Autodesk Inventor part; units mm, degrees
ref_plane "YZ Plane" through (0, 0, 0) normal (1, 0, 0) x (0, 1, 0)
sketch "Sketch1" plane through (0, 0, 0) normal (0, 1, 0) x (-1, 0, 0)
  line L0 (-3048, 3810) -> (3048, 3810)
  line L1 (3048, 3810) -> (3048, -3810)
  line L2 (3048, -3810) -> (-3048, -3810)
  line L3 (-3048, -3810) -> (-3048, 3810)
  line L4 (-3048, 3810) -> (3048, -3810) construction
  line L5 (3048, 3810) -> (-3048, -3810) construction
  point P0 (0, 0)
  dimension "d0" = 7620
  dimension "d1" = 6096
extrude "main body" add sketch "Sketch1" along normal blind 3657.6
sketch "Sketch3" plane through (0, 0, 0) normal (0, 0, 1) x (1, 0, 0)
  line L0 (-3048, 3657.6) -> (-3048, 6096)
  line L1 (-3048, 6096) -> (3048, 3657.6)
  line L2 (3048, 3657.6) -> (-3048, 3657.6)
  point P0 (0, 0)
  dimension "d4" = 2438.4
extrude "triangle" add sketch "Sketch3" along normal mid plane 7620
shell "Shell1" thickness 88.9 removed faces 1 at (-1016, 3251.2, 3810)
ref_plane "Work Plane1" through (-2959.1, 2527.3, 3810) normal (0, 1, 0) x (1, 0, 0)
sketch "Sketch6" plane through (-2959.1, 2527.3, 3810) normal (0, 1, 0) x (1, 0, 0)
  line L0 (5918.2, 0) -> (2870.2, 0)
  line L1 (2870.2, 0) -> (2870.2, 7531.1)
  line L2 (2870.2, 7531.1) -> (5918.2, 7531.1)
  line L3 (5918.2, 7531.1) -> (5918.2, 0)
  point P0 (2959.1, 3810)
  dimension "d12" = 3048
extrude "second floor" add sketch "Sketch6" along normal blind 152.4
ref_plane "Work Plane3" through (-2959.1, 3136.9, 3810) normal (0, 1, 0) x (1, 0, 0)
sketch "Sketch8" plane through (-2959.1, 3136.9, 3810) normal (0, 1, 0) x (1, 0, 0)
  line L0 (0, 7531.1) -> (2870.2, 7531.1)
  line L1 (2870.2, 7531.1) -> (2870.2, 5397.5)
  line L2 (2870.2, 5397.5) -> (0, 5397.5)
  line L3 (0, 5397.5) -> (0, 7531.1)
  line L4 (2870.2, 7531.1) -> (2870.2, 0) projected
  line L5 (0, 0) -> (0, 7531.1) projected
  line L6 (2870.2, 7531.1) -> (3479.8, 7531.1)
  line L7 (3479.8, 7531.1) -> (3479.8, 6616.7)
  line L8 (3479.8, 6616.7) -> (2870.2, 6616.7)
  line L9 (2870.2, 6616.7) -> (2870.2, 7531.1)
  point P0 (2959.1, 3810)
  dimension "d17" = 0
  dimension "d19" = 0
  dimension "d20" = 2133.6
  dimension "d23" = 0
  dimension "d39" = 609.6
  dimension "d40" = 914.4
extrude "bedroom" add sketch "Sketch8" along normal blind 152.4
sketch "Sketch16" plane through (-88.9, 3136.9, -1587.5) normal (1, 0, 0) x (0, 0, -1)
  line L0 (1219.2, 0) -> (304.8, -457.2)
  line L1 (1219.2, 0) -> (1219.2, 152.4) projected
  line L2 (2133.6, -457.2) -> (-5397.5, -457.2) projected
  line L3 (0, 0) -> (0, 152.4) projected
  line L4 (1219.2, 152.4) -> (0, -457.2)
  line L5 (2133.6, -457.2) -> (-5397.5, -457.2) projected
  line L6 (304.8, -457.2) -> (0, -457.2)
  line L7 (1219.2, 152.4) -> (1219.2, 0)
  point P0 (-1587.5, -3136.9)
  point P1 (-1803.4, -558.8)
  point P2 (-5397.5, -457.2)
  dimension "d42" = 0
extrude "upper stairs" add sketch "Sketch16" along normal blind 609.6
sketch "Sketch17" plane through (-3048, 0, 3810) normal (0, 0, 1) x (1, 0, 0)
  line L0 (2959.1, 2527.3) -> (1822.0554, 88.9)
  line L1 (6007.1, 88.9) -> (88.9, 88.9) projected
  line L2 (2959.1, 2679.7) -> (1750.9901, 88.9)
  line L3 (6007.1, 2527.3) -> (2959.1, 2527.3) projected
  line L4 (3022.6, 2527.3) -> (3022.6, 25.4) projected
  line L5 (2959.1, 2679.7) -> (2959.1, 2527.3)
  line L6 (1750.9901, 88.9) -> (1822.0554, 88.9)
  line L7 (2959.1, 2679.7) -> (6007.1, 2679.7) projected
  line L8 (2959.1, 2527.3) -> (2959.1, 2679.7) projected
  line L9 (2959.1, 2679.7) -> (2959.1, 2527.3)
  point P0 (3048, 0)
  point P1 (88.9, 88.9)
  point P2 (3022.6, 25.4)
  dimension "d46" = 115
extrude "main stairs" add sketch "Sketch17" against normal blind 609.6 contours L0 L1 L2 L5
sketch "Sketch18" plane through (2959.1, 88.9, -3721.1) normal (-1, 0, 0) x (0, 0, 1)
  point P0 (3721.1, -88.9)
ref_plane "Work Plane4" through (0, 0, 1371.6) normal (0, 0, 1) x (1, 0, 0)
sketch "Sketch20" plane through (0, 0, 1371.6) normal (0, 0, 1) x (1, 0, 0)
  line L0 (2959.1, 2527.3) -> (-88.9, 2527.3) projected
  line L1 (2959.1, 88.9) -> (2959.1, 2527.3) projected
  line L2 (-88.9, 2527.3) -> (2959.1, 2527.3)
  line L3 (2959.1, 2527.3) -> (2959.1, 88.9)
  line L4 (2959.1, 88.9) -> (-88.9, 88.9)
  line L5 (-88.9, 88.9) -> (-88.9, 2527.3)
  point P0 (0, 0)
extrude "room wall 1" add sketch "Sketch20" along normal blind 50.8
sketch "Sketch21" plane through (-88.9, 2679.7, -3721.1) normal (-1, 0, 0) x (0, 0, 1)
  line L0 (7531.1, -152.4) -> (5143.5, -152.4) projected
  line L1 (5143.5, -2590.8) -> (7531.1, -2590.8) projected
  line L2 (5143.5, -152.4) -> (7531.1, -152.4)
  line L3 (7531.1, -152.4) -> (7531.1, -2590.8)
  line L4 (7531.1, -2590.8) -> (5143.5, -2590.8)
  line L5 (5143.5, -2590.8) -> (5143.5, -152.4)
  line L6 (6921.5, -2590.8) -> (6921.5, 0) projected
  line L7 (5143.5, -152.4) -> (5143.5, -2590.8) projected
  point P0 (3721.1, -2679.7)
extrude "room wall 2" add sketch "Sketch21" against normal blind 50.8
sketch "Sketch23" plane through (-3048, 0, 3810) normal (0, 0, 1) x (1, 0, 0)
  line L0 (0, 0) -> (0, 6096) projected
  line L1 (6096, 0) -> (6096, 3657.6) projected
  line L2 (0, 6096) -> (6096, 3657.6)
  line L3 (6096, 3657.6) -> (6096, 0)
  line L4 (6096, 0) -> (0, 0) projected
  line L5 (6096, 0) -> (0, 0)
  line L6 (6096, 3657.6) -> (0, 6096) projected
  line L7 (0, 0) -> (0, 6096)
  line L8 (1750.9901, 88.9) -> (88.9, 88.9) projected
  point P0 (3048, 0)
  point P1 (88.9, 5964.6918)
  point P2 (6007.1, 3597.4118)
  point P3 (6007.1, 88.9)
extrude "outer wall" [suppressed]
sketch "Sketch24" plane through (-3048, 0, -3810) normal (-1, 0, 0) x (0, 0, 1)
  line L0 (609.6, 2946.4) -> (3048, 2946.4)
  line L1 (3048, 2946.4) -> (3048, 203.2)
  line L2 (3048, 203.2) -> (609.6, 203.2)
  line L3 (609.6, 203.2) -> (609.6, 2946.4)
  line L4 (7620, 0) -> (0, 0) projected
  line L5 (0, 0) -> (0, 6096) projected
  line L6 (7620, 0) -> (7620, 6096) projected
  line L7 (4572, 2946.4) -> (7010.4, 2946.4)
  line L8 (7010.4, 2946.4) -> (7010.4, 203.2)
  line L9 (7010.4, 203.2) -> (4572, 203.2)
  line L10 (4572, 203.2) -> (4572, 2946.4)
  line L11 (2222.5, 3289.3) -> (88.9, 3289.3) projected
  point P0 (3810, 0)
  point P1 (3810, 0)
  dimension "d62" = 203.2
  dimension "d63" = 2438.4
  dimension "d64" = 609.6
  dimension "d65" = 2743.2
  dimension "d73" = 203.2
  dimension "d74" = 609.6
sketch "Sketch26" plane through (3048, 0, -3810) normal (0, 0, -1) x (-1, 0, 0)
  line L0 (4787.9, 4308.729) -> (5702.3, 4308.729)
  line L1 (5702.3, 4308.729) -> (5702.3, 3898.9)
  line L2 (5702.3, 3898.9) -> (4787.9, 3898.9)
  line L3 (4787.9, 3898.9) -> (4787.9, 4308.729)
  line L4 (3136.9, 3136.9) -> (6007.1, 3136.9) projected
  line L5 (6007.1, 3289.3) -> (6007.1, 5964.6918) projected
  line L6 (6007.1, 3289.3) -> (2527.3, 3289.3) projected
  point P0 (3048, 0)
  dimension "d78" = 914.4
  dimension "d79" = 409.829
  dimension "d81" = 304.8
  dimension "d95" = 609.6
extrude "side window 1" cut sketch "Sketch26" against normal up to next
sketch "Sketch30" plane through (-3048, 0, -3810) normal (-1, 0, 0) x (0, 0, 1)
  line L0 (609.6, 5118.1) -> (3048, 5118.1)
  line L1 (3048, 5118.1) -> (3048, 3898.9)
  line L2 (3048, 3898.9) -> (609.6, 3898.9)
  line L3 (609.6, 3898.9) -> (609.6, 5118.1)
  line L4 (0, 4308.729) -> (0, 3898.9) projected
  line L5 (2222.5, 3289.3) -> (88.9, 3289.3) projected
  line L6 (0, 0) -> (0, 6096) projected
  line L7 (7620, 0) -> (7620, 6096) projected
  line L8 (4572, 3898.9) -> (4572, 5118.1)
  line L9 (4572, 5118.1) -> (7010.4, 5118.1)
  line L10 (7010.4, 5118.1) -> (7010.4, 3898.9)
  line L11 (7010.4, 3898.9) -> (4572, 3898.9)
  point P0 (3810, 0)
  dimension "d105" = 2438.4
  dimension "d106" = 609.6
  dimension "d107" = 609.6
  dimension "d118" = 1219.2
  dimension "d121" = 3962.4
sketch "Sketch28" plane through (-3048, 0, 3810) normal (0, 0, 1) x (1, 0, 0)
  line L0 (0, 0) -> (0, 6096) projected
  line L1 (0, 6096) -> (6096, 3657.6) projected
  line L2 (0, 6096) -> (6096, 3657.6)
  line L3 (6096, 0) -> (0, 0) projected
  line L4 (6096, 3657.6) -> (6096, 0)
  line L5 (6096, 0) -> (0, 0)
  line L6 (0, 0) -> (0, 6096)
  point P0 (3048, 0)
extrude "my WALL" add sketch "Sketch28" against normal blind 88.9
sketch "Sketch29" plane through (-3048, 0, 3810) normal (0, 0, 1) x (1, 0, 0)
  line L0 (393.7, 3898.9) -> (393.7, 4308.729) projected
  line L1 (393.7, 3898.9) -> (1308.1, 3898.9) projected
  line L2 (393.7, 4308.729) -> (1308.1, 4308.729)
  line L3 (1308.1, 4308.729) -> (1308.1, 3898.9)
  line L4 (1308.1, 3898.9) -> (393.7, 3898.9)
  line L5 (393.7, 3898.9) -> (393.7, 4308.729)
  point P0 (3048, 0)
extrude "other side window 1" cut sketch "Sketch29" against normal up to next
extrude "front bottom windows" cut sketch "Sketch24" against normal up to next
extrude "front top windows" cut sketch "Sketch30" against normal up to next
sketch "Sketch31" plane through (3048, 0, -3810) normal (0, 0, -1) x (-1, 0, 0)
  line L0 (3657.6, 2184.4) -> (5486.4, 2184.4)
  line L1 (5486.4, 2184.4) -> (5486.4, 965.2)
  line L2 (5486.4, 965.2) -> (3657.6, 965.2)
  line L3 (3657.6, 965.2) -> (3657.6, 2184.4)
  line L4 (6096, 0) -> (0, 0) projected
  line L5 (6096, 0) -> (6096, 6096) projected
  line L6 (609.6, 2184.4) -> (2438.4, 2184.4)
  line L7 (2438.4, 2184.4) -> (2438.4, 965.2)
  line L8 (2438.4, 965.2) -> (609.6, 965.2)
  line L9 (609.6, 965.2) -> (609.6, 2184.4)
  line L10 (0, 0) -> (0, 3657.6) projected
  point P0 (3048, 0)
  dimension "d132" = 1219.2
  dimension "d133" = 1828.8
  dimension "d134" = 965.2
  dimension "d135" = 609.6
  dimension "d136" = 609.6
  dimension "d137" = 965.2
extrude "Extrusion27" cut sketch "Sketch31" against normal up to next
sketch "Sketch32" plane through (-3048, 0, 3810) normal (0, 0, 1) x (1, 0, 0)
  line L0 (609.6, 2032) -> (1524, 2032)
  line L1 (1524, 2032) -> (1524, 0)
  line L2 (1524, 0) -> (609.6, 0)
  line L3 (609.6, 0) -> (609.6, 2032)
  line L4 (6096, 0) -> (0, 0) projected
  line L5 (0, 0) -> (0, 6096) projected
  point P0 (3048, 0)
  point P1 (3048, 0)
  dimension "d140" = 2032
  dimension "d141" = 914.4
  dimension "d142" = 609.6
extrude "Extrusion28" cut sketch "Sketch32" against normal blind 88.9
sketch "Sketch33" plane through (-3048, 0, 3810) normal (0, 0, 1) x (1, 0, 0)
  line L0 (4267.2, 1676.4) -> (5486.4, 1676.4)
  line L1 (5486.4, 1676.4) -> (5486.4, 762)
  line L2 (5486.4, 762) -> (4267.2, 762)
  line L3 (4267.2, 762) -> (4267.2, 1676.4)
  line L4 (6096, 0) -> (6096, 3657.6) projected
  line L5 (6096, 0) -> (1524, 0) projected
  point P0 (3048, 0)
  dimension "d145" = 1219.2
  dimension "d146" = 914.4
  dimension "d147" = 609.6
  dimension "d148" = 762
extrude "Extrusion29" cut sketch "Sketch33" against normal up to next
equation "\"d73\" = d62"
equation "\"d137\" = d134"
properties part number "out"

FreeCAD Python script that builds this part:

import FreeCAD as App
import Part
import Sketcher

V = App.Vector
Q = App.Units.Quantity


def faces_at(feature, points):
    """Names of the faces that lie closest to the given points."""
    faces = feature.Shape.Faces
    near = lambda p: min(range(len(faces)), key=lambda i: faces[i].distToShape(Part.Vertex(*p))[0])
    return sorted({f"Face{near(p) + 1}" for p in points})

doc = App.newDocument("Part")
body = doc.addObject("PartDesign::Body", "Body")

sketch1 = body.newObject("Sketcher::SketchObject", "Sketch")
sketch1.AttachmentSupport = (doc.getObject("XZ_Plane"), [""])
sketch1.MapMode = "FlatFace"
sketch1.addGeometry([
    Part.LineSegment(V(-3048, 3810, 0), V(3048, 3810, 0)),
    Part.LineSegment(V(3048, 3810, 0), V(3048, -3810, 0)),
    Part.LineSegment(V(3048, -3810, 0), V(-3048, -3810, 0)),
    Part.LineSegment(V(-3048, -3810, 0), V(-3048, 3810, 0)),
], False)
sketch1.addConstraint([
    Sketcher.Constraint("Coincident", 0, 2, 1, 1),
    Sketcher.Constraint("Coincident", 1, 2, 2, 1),
    Sketcher.Constraint("Coincident", 2, 2, 3, 1),
    Sketcher.Constraint("Coincident", 3, 2, 0, 1),
    Sketcher.Constraint("Horizontal", 0),
    Sketcher.Constraint("Vertical", 1),
    Sketcher.Constraint("Horizontal", 2),
    Sketcher.Constraint("Vertical", 3),
    Sketcher.Constraint("Symmetric", 0, 2, 2, 2, -1, 1),
    Sketcher.Constraint("DistanceX", 0, 1, 0, 2, Q("240 in")),
    Sketcher.Constraint("DistanceY", 1, 2, 1, 1, Q("300 in")),
])
pad1 = body.newObject("PartDesign::Pad", "Pad")
pad1.Profile = sketch1
pad1.Length = Q("144 in")
pad1.Reversed = True

sketch2 = body.newObject("Sketcher::SketchObject", "Sketch001")
sketch2.AttachmentSupport = (doc.getObject("XY_Plane"), [""])
sketch2.MapMode = "FlatFace"
sketch2.addGeometry([
    Part.LineSegment(V(-3048, 6096, 0), V(-3048, 3658, 0)),
    Part.LineSegment(V(-3048, 3658, 0), V(3048, 3658, 0)),
    Part.LineSegment(V(3048, 3658, 0), V(-3048, 6096, 0)),
], False)
sketch2.addConstraint([
    Sketcher.Constraint("Coincident", 0, 2, 1, 1),
    Sketcher.Constraint("Coincident", 1, 2, 2, 1),
    Sketcher.Constraint("Coincident", 2, 2, 0, 1),
    Sketcher.Constraint("Vertical", 0),
    Sketcher.Constraint("Horizontal", 1),
    Sketcher.Constraint("DistanceY", 0, 2, 0, 1, Q("96 in")),
    Sketcher.Constraint("DistanceX", 1, 1, 1, 2, Q("240 in")),
    Sketcher.Constraint("DistanceX", 0, 2, -1, 1, Q("120 in")),
    Sketcher.Constraint("DistanceY", -1, 1, 0, 2, Q("144 in")),
])
pad2 = body.newObject("PartDesign::Pad", "Pad001")
pad2.Profile = sketch2
pad2.Length = Q("300 in")
pad2.Midplane = True
doc.recompute()

thickness = body.newObject("PartDesign::Thickness", "Thickness")
thickness.Base = (pad2, faces_at(pad2, [(-1016, 3251.2, 3810)]))
thickness.Value = Q("3.5 in")
thickness.Reversed = True
thickness.Join = "Intersection"

sketch3 = body.newObject("Sketcher::SketchObject", "Sketch002")
sketch3.AttachmentSupport = (doc.getObject("XZ_Plane"), [""])
sketch3.MapMode = "FlatFace"
sketch3.AttachmentOffset = App.Placement(V(0, 0, -99.5 * 25.4), App.Rotation())
sketch3.addGeometry([
    Part.LineSegment(V(-89, 3810, 0), V(2959, 3810, 0)),
    Part.LineSegment(V(2959, 3810, 0), V(2959, -3721, 0)),
    Part.LineSegment(V(2959, -3721, 0), V(-89, -3721, 0)),
    Part.LineSegment(V(-89, -3721, 0), V(-89, 3810, 0)),
], False)
sketch3.addConstraint([
    Sketcher.Constraint("Coincident", 0, 2, 1, 1),
    Sketcher.Constraint("Coincident", 1, 2, 2, 1),
    Sketcher.Constraint("Coincident", 2, 2, 3, 1),
    Sketcher.Constraint("Coincident", 3, 2, 0, 1),
    Sketcher.Constraint("Horizontal", 0),
    Sketcher.Constraint("Vertical", 1),
    Sketcher.Constraint("Horizontal", 2),
    Sketcher.Constraint("Vertical", 3),
    Sketcher.Constraint("DistanceX", 0, 1, 0, 2, Q("120 in")),
    Sketcher.Constraint("DistanceY", 1, 2, 1, 1, Q("296.5 in")),
    Sketcher.Constraint("DistanceY", -1, 1, 0, 2, Q("150 in")),
    Sketcher.Constraint("DistanceX", -1, 1, 0, 2, Q("116.5 in")),
])
pad3 = body.newObject("PartDesign::Pad", "Pad002")
pad3.Profile = sketch3
pad3.Length = Q("6 in")
pad3.Reversed = True

sketch4 = body.newObject("Sketcher::SketchObject", "Sketch003")
sketch4.AttachmentSupport = (doc.getObject("XZ_Plane"), [""])
sketch4.MapMode = "FlatFace"
sketch4.AttachmentOffset = App.Placement(V(0, 0, -123.5 * 25.4), App.Rotation())
sketch4.addGeometry([
    Part.LineSegment(V(-2959, -3721, 0), V(-2959, -1588, 0)),
    Part.LineSegment(V(-2959, -1588, 0), V(-89, -1588, 0)),
    Part.LineSegment(V(-89, -1588, 0), V(-89, -2807, 0)),
    Part.LineSegment(V(-89, -2807, 0), V(521, -2807, 0)),
    Part.LineSegment(V(521, -2807, 0), V(521, -3721, 0)),
    Part.LineSegment(V(521, -3721, 0), V(-2959, -3721, 0)),
], False)
sketch4.addConstraint([
    Sketcher.Constraint("Coincident", 0, 2, 1, 1),
    Sketcher.Constraint("Coincident", 1, 2, 2, 1),
    Sketcher.Constraint("Coincident", 2, 2, 3, 1),
    Sketcher.Constraint("Coincident", 3, 2, 4, 1),
    Sketcher.Constraint("Coincident", 4, 2, 5, 1),
    Sketcher.Constraint("Coincident", 5, 2, 0, 1),
    Sketcher.Constraint("Vertical", 0),
    Sketcher.Constraint("Horizontal", 1),
    Sketcher.Constraint("Vertical", 2),
    Sketcher.Constraint("Horizontal", 3),
    Sketcher.Constraint("Vertical", 4),
    Sketcher.Constraint("Horizontal", 5),
    Sketcher.Constraint("DistanceX", 3, 1, 3, 2, Q("24 in")),
    Sketcher.Constraint("DistanceY", 0, 1, 0, 2, Q("84 in")),
    Sketcher.Constraint("DistanceY", 4, 2, 4, 1, Q("36 in")),
    Sketcher.Constraint("DistanceX", 1, 1, 1, 2, Q("113 in")),
    Sketcher.Constraint("DistanceX", 0, 2, -1, 1, Q("116.5 in")),
    Sketcher.Constraint("DistanceY", 0, 2, -1, 1, Q("62.5 in")),
])
pad4 = body.newObject("PartDesign::Pad", "Pad003")
pad4.Profile = sketch4
pad4.Length = Q("6 in")
pad4.Reversed = True

sketch5 = body.newObject("Sketcher::SketchObject", "Sketch004")
sketch5.AttachmentSupport = (doc.getObject("YZ_Plane"), [""])
sketch5.MapMode = "FlatFace"
sketch5.AttachmentOffset = App.Placement(V(0, 0, -3.5 * 25.4), App.Rotation())
sketch5.addGeometry([
    Part.LineSegment(V(2680, -1892, 0), V(3137, -2807, 0)),
    Part.LineSegment(V(3137, -2807, 0), V(3289, -2807, 0)),
    Part.LineSegment(V(3289, -2807, 0), V(2680, -1588, 0)),
    Part.LineSegment(V(2680, -1588, 0), V(2680, -1892, 0)),
], False)
sketch5.addConstraint([
    Sketcher.Constraint("Coincident", 0, 2, 1, 1),
    Sketcher.Constraint("Coincident", 1, 2, 2, 1),
    Sketcher.Constraint("Coincident", 2, 2, 3, 1),
    Sketcher.Constraint("Coincident", 3, 2, 0, 1),
    Sketcher.Constraint("Horizontal", 1),
    Sketcher.Constraint("Vertical", 3),
    Sketcher.Constraint("Parallel", 0, 2),
    Sketcher.Constraint("DistanceX", 1, 1, 1, 2, Q("6 in")),
    Sketcher.Constraint("DistanceY", 3, 2, 3, 1, Q("12 in")),
    Sketcher.Constraint("DistanceX", 2, 2, 0, 2, Q("18 in")),
    Sketcher.Constraint("DistanceX", -1, 1, 0, 2, Q("123.5 in")),
    Sketcher.Constraint("DistanceY", 0, 2, -1, 1, Q("110.5 in")),
])
pad5 = body.newObject("PartDesign::Pad", "Pad004")
pad5.Profile = sketch5
pad5.Length = Q("24 in")

sketch6 = body.newObject("Sketcher::SketchObject", "Sketch005")
sketch6.AttachmentSupport = (doc.getObject("XY_Plane"), [""])
sketch6.MapMode = "FlatFace"
sketch6.AttachmentOffset = App.Placement(V(0, 0, 150 * 25.4), App.Rotation())
sketch6.addGeometry([
    Part.LineSegment(V(-1226, 89, 0), V(-89, 2527, 0)),
    Part.LineSegment(V(-89, 2527, 0), V(-89, 2680, 0)),
    Part.LineSegment(V(-89, 2680, 0), V(-1297, 89, 0)),
    Part.LineSegment(V(-1297, 89, 0), V(-1226, 89, 0)),
], False)
sketch6.addConstraint([
    Sketcher.Constraint("Coincident", 0, 2, 1, 1),
    Sketcher.Constraint("Coincident", 1, 2, 2, 1),
    Sketcher.Constraint("Coincident", 2, 2, 3, 1),
    Sketcher.Constraint("Coincident", 3, 2, 0, 1),
    Sketcher.Constraint("Vertical", 1),
    Sketcher.Constraint("Horizontal", 3),
    Sketcher.Constraint("Parallel", 0, 2),
    Sketcher.Constraint("Angle", 2, Q("-115 deg")),
    Sketcher.Constraint("DistanceY", 1, 1, 1, 2, Q("6 in")),
    Sketcher.Constraint("DistanceY", 2, 2, 0, 2, Q("96 in")),
    Sketcher.Constraint("DistanceX", 0, 2, -1, 1, Q("3.5 in")),
    Sketcher.Constraint("DistanceY", -1, 1, 0, 2, Q("99.5 in")),
])
pad6 = body.newObject("PartDesign::Pad", "Pad005")
pad6.Profile = sketch6
pad6.Length = Q("24 in")
pad6.Reversed = True

sketch7 = body.newObject("Sketcher::SketchObject", "Sketch006")
sketch7.AttachmentSupport = (doc.getObject("XY_Plane"), [""])
sketch7.MapMode = "FlatFace"
sketch7.AttachmentOffset = App.Placement(V(0, 0, 54 * 25.4), App.Rotation())
sketch7.addGeometry([
    Part.LineSegment(V(2959, 89, 0), V(2959, 2527, 0)),
    Part.LineSegment(V(2959, 2527, 0), V(-89, 2527, 0)),
    Part.LineSegment(V(-89, 2527, 0), V(-89, 89, 0)),
    Part.LineSegment(V(-89, 89, 0), V(2959, 89, 0)),
], False)
sketch7.addConstraint([
    Sketcher.Constraint("Coincident", 0, 2, 1, 1),
    Sketcher.Constraint("Coincident", 1, 2, 2, 1),
    Sketcher.Constraint("Coincident", 2, 2, 3, 1),
    Sketcher.Constraint("Coincident", 3, 2, 0, 1),
    Sketcher.Constraint("Vertical", 0),
    Sketcher.Constraint("Horizontal", 1),
    Sketcher.Constraint("Vertical", 2),
    Sketcher.Constraint("Horizontal", 3),
    Sketcher.Constraint("DistanceX", 1, 2, 1, 1, Q("120 in")),
    Sketcher.Constraint("DistanceY", 0, 1, 0, 2, Q("96 in")),
    Sketcher.Constraint("DistanceX", -1, 1, 0, 2, Q("116.5 in")),
    Sketcher.Constraint("DistanceY", -1, 1, 0, 2, Q("99.5 in")),
])
pad7 = body.newObject("PartDesign::Pad", "Pad006")
pad7.Profile = sketch7
pad7.Length = Q("2 in")

sketch8 = body.newObject("Sketcher::SketchObject", "Sketch007")
sketch8.AttachmentSupport = (doc.getObject("YZ_Plane"), [""])
sketch8.MapMode = "FlatFace"
sketch8.AttachmentOffset = App.Placement(V(0, 0, -3.5 * 25.4), App.Rotation())
sketch8.addGeometry([
    Part.LineSegment(V(89, 3810, 0), V(2527, 3810, 0)),
    Part.LineSegment(V(2527, 3810, 0), V(2527, 1422, 0)),
    Part.LineSegment(V(2527, 1422, 0), V(89, 1422, 0)),
    Part.LineSegment(V(89, 1422, 0), V(89, 3810, 0)),
], False)
sketch8.addConstraint([
    Sketcher.Constraint("Coincident", 0, 2, 1, 1),
    Sketcher.Constraint("Coincident", 1, 2, 2, 1),
    Sketcher.Constraint("Coincident", 2, 2, 3, 1),
    Sketcher.Constraint("Coincident", 3, 2, 0, 1),
    Sketcher.Constraint("Horizontal", 0),
    Sketcher.Constraint("Vertical", 1),
    Sketcher.Constraint("Horizontal", 2),
    Sketcher.Constraint("Vertical", 3),
    Sketcher.Constraint("DistanceX", 0, 1, 0, 2, Q("96 in")),
    Sketcher.Constraint("DistanceY", 1, 2, 1, 1, Q("94 in")),
    Sketcher.Constraint("DistanceY", -1, 1, 0, 2, Q("150 in")),
    Sketcher.Constraint("DistanceX", -1, 1, 0, 2, Q("99.5 in")),
])
pad8 = body.newObject("PartDesign::Pad", "Pad007")
pad8.Profile = sketch8
pad8.Length = Q("2 in")

sketch9 = body.newObject("Sketcher::SketchObject", "Sketch008")
sketch9.AttachmentSupport = (doc.getObject("XY_Plane"), [""])
sketch9.MapMode = "FlatFace"
sketch9.AttachmentOffset = App.Placement(V(0, 0, -150 * 25.4), App.Rotation())
sketch9.addGeometry([
    Part.LineSegment(V(-2654, 4309, 0), V(-1740, 4309, 0)),
    Part.LineSegment(V(-1740, 4309, 0), V(-1740, 3899, 0)),
    Part.LineSegment(V(-1740, 3899, 0), V(-2654, 3899, 0)),
    Part.LineSegment(V(-2654, 3899, 0), V(-2654, 4309, 0)),
], False)
sketch9.addConstraint([
    Sketcher.Constraint("Coincident", 0, 2, 1, 1),
    Sketcher.Constraint("Coincident", 1, 2, 2, 1),
    Sketcher.Constraint("Coincident", 2, 2, 3, 1),
    Sketcher.Constraint("Coincident", 3, 2, 0, 1),
    Sketcher.Constraint("Horizontal", 0),
    Sketcher.Constraint("Vertical", 1),
    Sketcher.Constraint("Horizontal", 2),
    Sketcher.Constraint("Vertical", 3),
    Sketcher.Constraint("DistanceX", 0, 1, 0, 2, Q("36 in")),
    Sketcher.Constraint("DistanceY", 1, 2, 1, 1, Q("16.135 in")),
    Sketcher.Constraint("DistanceX", 0, 2, -1, 1, Q("68.5 in")),
    Sketcher.Constraint("DistanceY", -1, 1, 1, 2, Q("153.5 in")),
])
pocket1 = body.newObject("PartDesign::Pocket", "Pocket")
pocket1.Profile = sketch9
pocket1.Type = "UpToFirst"
pocket1.Reversed = True

sketch10 = body.newObject("Sketcher::SketchObject", "Sketch009")
sketch10.AttachmentSupport = (doc.getObject("XY_Plane"), [""])
sketch10.MapMode = "FlatFace"
sketch10.AttachmentOffset = App.Placement(V(0, 0, 150 * 25.4), App.Rotation())
sketch10.addGeometry([
    Part.LineSegment(V(-3048, 6096, 0), V(-3048, 0, 0)),
    Part.LineSegment(V(-3048, 0, 0), V(3048, 0, 0)),
    Part.LineSegment(V(3048, 0, 0), V(3048, 3658, 0)),
    Part.LineSegment(V(3048, 3658, 0), V(-3048, 6096, 0)),
], False)
sketch10.addConstraint([
    Sketcher.Constraint("Coincident", 0, 2, 1, 1),
    Sketcher.Constraint("Coincident", 1, 2, 2, 1),
    Sketcher.Constraint("Coincident", 2, 2, 3, 1),
    Sketcher.Constraint("Coincident", 3, 2, 0, 1),
    Sketcher.Constraint("Vertical", 0),
    Sketcher.Constraint("Horizontal", 1),
    Sketcher.Constraint("Vertical", 2),
    Sketcher.Constraint("Symmetric", 0, 2, 1, 2, -1, 1),
    Sketcher.Constraint("Equal", 1, 0),
    Sketcher.Constraint("DistanceX", 1, 1, 1, 2, Q("240 in")),
    Sketcher.Constraint("DistanceY", 2, 1, 2, 2, Q("144 in")),
])
pad9 = body.newObject("PartDesign::Pad", "Pad008")
pad9.Profile = sketch10
pad9.Length = Q("3.5 in")
pad9.Reversed = True

sketch11 = body.newObject("Sketcher::SketchObject", "Sketch010")
sketch11.AttachmentSupport = (doc.getObject("XY_Plane"), [""])
sketch11.MapMode = "FlatFace"
sketch11.AttachmentOffset = App.Placement(V(0, 0, 150 * 25.4), App.Rotation())
sketch11.addGeometry([
    Part.LineSegment(V(-2654, 4309, 0), V(-2654, 3899, 0)),
    Part.LineSegment(V(-2654, 3899, 0), V(-1740, 3899, 0)),
    Part.LineSegment(V(-1740, 3899, 0), V(-1740, 4309, 0)),
    Part.LineSegment(V(-1740, 4309, 0), V(-2654, 4309, 0)),
], False)
sketch11.addConstraint([
    Sketcher.Constraint("Coincident", 0, 2, 1, 1),
    Sketcher.Constraint("Coincident", 1, 2, 2, 1),
    Sketcher.Constraint("Coincident", 2, 2, 3, 1),
    Sketcher.Constraint("Coincident", 3, 2, 0, 1),
    Sketcher.Constraint("Vertical", 0),
    Sketcher.Constraint("Horizontal", 1),
    Sketcher.Constraint("Vertical", 2),
    Sketcher.Constraint("Horizontal", 3),
    Sketcher.Constraint("DistanceX", 1, 1, 1, 2, Q("36 in")),
    Sketcher.Constraint("DistanceX", 0, 2, -1, 1, Q("104.5 in")),
    Sketcher.Constraint("DistanceY", -1, 1, 0, 2, Q("153.5 in")),
    Sketcher.Constraint("DistanceY", 0, 2, 0, 1, Q("16.135 in")),
])
pocket2 = body.newObject("PartDesign::Pocket", "Pocket001")
pocket2.Profile = sketch11
pocket2.Type = "UpToFirst"

sketch12 = body.newObject("Sketcher::SketchObject", "Sketch011")
sketch12.AttachmentSupport = (doc.getObject("YZ_Plane"), [""])
sketch12.MapMode = "FlatFace"
sketch12.AttachmentOffset = App.Placement(V(0, 0, -120 * 25.4), App.Rotation())
sketch12.addGeometry([
    Part.LineSegment(V(2946, -762, 0), V(2946, -3200, 0)),
    Part.LineSegment(V(2946, -3200, 0), V(203, -3200, 0)),
    Part.LineSegment(V(203, -3200, 0), V(203, -762, 0)),
    Part.LineSegment(V(203, -762, 0), V(2946, -762, 0)),
    Part.LineSegment(V(2946, 3200, 0), V(2946, 762, 0)),
    Part.LineSegment(V(2946, 762, 0), V(203, 762, 0)),
    Part.LineSegment(V(203, 762, 0), V(203, 3200, 0)),
    Part.LineSegment(V(203, 3200, 0), V(2946, 3200, 0)),
], False)
sketch12.addConstraint([
    Sketcher.Constraint("Coincident", 0, 2, 1, 1),
    Sketcher.Constraint("Coincident", 1, 2, 2, 1),
    Sketcher.Constraint("Coincident", 2, 2, 3, 1),
    Sketcher.Constraint("Coincident", 3, 2, 0, 1),
    Sketcher.Constraint("Coincident", 4, 2, 5, 1),
    Sketcher.Constraint("Coincident", 5, 2, 6, 1),
    Sketcher.Constraint("Coincident", 6, 2, 7, 1),
    Sketcher.Constraint("Coincident", 7, 2, 4, 1),
    Sketcher.Constraint("Vertical", 0),
    Sketcher.Constraint("Horizontal", 1),
    Sketcher.Constraint("Vertical", 2),
    Sketcher.Constraint("Horizontal", 3),
    Sketcher.Constraint("Vertical", 4),
    Sketcher.Constraint("Horizontal", 5),
    Sketcher.Constraint("Vertical", 6),
    Sketcher.Constraint("Horizontal", 7),
    Sketcher.Constraint("Symmetric", 3, 2, 4, 2, -1),
    Sketcher.Constraint("Symmetric", 1, 2, 6, 2, -1),
    Sketcher.Constraint("DistanceX", 1, 2, 1, 1, Q("108 in")),
    Sketcher.Constraint("DistanceY", 0, 2, 0, 1, Q("96 in")),
    Sketcher.Constraint("DistanceX", -1, 1, 1, 2, Q("8 in")),
    Sketcher.Constraint("DistanceY", 0, 2, -1, 1, Q("126 in")),
])
pocket3 = body.newObject("PartDesign::Pocket", "Pocket002")
pocket3.Profile = sketch12
pocket3.Type = "UpToFirst"
pocket3.Reversed = True

sketch13 = body.newObject("Sketcher::SketchObject", "Sketch012")
sketch13.AttachmentSupport = (doc.getObject("YZ_Plane"), [""])
sketch13.MapMode = "FlatFace"
sketch13.AttachmentOffset = App.Placement(V(0, 0, -120 * 25.4), App.Rotation())
sketch13.addGeometry([
    Part.LineSegment(V(5118, -762, 0), V(5118, -3200, 0)),
    Part.LineSegment(V(5118, -3200, 0), V(3899, -3200, 0)),
    Part.LineSegment(V(3899, -3200, 0), V(3899, -762, 0)),
    Part.LineSegment(V(3899, -762, 0), V(5118, -762, 0)),
    Part.LineSegment(V(5118, 762, 0), V(3899, 762, 0)),
    Part.LineSegment(V(3899, 762, 0), V(3899, 3200, 0)),
    Part.LineSegment(V(3899, 3200, 0), V(5118, 3200, 0)),
    Part.LineSegment(V(5118, 3200, 0), V(5118, 762, 0)),
], False)
sketch13.addConstraint([
    Sketcher.Constraint("Coincident", 0, 2, 1, 1),
    Sketcher.Constraint("Coincident", 1, 2, 2, 1),
    Sketcher.Constraint("Coincident", 2, 2, 3, 1),
    Sketcher.Constraint("Coincident", 3, 2, 0, 1),
    Sketcher.Constraint("Coincident", 4, 2, 5, 1),
    Sketcher.Constraint("Coincident", 5, 2, 6, 1),
    Sketcher.Constraint("Coincident", 6, 2, 7, 1),
    Sketcher.Constraint("Coincident", 7, 2, 4, 1),
    Sketcher.Constraint("Vertical", 0),
    Sketcher.Constraint("Horizontal", 1),
    Sketcher.Constraint("Vertical", 2),
    Sketcher.Constraint("Horizontal", 3),
    Sketcher.Constraint("Horizontal", 4),
    Sketcher.Constraint("Vertical", 5),
    Sketcher.Constraint("Horizontal", 6),
    Sketcher.Constraint("Vertical", 7),
    Sketcher.Constraint("Symmetric", 2, 2, 4, 2, -1),
    Sketcher.Constraint("Symmetric", 0, 2, 6, 2, -1),
    Sketcher.Constraint("DistanceX", 1, 2, 1, 1, Q("48 in")),
    Sketcher.Constraint("DistanceY", 0, 2, 0, 1, Q("96 in")),
    Sketcher.Constraint("DistanceY", 1, 2, 4, 2, Q("156 in")),
    Sketcher.Constraint("DistanceX", -1, 1, 0, 2, Q("201.5 in")),
])
pocket4 = body.newObject("PartDesign::Pocket", "Pocket003")
pocket4.Profile = sketch13
pocket4.Type = "UpToFirst"
pocket4.Reversed = True

sketch14 = body.newObject("Sketcher::SketchObject", "Sketch013")
sketch14.AttachmentSupport = (doc.getObject("XY_Plane"), [""])
sketch14.MapMode = "FlatFace"
sketch14.AttachmentOffset = App.Placement(V(0, 0, -150 * 25.4), App.Rotation())
sketch14.addGeometry([
    Part.LineSegment(V(-2438, 2184, 0), V(-610, 2184, 0)),
    Part.LineSegment(V(-610, 2184, 0), V(-610, 965, 0)),
    Part.LineSegment(V(-610, 965, 0), V(-2438, 965, 0)),
    Part.LineSegment(V(-2438, 965, 0), V(-2438, 2184, 0)),
    Part.LineSegment(V(610, 2184, 0), V(2438, 2184, 0)),
    Part.LineSegment(V(2438, 2184, 0), V(2438, 965, 0)),
    Part.LineSegment(V(2438, 965, 0), V(610, 965, 0)),
    Part.LineSegment(V(610, 965, 0), V(610, 2184, 0)),
], False)
sketch14.addConstraint([
    Sketcher.Constraint("Coincident", 0, 2, 1, 1),
    Sketcher.Constraint("Coincident", 1, 2, 2, 1),
    Sketcher.Constraint("Coincident", 2, 2, 3, 1),
    Sketcher.Constraint("Coincident", 3, 2, 0, 1),
    Sketcher.Constraint("Coincident", 4, 2, 5, 1),
    Sketcher.Constraint("Coincident", 5, 2, 6, 1),
    Sketcher.Constraint("Coincident", 6, 2, 7, 1),
    Sketcher.Constraint("Coincident", 7, 2, 4, 1),
    Sketcher.Constraint("Horizontal", 0),
    Sketcher.Constraint("Vertical", 1),
    Sketcher.Constraint("Horizontal", 2),
    Sketcher.Constraint("Vertical", 3),
    Sketcher.Constraint("Horizontal", 4),
    Sketcher.Constraint("Vertical", 5),
    Sketcher.Constraint("Horizontal", 6),
    Sketcher.Constraint("Vertical", 7),
    Sketcher.Constraint("Symmetric", 3, 2, 4, 2, -2),
    Sketcher.Constraint("Symmetric", 1, 2, 6, 2, -2),
    Sketcher.Constraint("DistanceX", 0, 1, 0, 2, Q("72 in")),
    Sketcher.Constraint("DistanceY", 1, 2, 1, 1, Q("48 in")),
    Sketcher.Constraint("DistanceX", 0, 2, -1, 1, Q("24 in")),
    Sketcher.Constraint("DistanceY", -1, 1, 1, 2, Q("38 in")),
])
pocket5 = body.newObject("PartDesign::Pocket", "Pocket004")
pocket5.Profile = sketch14
pocket5.Type = "UpToFirst"
pocket5.Reversed = True

sketch15 = body.newObject("Sketcher::SketchObject", "Sketch014")
sketch15.AttachmentSupport = (doc.getObject("XY_Plane"), [""])
sketch15.MapMode = "FlatFace"
sketch15.AttachmentOffset = App.Placement(V(0, 0, 150 * 25.4), App.Rotation())
sketch15.addGeometry([
    Part.LineSegment(V(-1524, 2032, 0), V(-2438, 2032, 0)),
    Part.LineSegment(V(-2438, 2032, 0), V(-2438, 0, 0)),
    Part.LineSegment(V(-2438, 0, 0), V(-1524, 0, 0)),
    Part.LineSegment(V(-1524, 0, 0), V(-1524, 2032, 0)),
], False)
sketch15.addConstraint([
    Sketcher.Constraint("Coincident", 0, 2, 1, 1),
    Sketcher.Constraint("Coincident", 1, 2, 2, 1),
    Sketcher.Constraint("Coincident", 2, 2, 3, 1),
    Sketcher.Constraint("Coincident", 3, 2, 0, 1),
    Sketcher.Constraint("Horizontal", 0),
    Sketcher.Constraint("Vertical", 1),
    Sketcher.Constraint("Horizontal", 2),
    Sketcher.Constraint("Vertical", 3),
    Sketcher.Constraint("PointOnObject", 1, 2, -1),
    Sketcher.Constraint("DistanceX", 0, 2, 0, 1, Q("36 in")),
    Sketcher.Constraint("DistanceY", 1, 2, 1, 1, Q("80 in")),
    Sketcher.Constraint("DistanceX", 0, 2, -1, 1, Q("96 in")),
])
pocket6 = body.newObject("PartDesign::Pocket", "Pocket005")
pocket6.Profile = sketch15
pocket6.Length = Q("3.5 in")

sketch16 = body.newObject("Sketcher::SketchObject", "Sketch015")
sketch16.AttachmentSupport = (doc.getObject("XY_Plane"), [""])
sketch16.MapMode = "FlatFace"
sketch16.AttachmentOffset = App.Placement(V(0, 0, 150 * 25.4), App.Rotation())
sketch16.addGeometry([
    Part.LineSegment(V(2438, 1676, 0), V(1219, 1676, 0)),
    Part.LineSegment(V(1219, 1676, 0), V(1219, 762, 0)),
    Part.LineSegment(V(1219, 762, 0), V(2438, 762, 0)),
    Part.LineSegment(V(2438, 762, 0), V(2438, 1676, 0)),
], False)
sketch16.addConstraint([
    Sketcher.Constraint("Coincident", 0, 2, 1, 1),
    Sketcher.Constraint("Coincident", 1, 2, 2, 1),
    Sketcher.Constraint("Coincident", 2, 2, 3, 1),
    Sketcher.Constraint("Coincident", 3, 2, 0, 1),
    Sketcher.Constraint("Horizontal", 0),
    Sketcher.Constraint("Vertical", 1),
    Sketcher.Constraint("Horizontal", 2),
    Sketcher.Constraint("Vertical", 3),
    Sketcher.Constraint("DistanceX", 0, 2, 0, 1, Q("48 in")),
    Sketcher.Constraint("DistanceY", 1, 2, 1, 1, Q("36 in")),
    Sketcher.Constraint("DistanceX", -1, 1, 0, 2, Q("48 in")),
    Sketcher.Constraint("DistanceY", -1, 1, 1, 2, Q("30 in")),
])
pocket7 = body.newObject("PartDesign::Pocket", "Pocket006")
pocket7.Profile = sketch16
pocket7.Type = "UpToFirst"

doc.recompute()
